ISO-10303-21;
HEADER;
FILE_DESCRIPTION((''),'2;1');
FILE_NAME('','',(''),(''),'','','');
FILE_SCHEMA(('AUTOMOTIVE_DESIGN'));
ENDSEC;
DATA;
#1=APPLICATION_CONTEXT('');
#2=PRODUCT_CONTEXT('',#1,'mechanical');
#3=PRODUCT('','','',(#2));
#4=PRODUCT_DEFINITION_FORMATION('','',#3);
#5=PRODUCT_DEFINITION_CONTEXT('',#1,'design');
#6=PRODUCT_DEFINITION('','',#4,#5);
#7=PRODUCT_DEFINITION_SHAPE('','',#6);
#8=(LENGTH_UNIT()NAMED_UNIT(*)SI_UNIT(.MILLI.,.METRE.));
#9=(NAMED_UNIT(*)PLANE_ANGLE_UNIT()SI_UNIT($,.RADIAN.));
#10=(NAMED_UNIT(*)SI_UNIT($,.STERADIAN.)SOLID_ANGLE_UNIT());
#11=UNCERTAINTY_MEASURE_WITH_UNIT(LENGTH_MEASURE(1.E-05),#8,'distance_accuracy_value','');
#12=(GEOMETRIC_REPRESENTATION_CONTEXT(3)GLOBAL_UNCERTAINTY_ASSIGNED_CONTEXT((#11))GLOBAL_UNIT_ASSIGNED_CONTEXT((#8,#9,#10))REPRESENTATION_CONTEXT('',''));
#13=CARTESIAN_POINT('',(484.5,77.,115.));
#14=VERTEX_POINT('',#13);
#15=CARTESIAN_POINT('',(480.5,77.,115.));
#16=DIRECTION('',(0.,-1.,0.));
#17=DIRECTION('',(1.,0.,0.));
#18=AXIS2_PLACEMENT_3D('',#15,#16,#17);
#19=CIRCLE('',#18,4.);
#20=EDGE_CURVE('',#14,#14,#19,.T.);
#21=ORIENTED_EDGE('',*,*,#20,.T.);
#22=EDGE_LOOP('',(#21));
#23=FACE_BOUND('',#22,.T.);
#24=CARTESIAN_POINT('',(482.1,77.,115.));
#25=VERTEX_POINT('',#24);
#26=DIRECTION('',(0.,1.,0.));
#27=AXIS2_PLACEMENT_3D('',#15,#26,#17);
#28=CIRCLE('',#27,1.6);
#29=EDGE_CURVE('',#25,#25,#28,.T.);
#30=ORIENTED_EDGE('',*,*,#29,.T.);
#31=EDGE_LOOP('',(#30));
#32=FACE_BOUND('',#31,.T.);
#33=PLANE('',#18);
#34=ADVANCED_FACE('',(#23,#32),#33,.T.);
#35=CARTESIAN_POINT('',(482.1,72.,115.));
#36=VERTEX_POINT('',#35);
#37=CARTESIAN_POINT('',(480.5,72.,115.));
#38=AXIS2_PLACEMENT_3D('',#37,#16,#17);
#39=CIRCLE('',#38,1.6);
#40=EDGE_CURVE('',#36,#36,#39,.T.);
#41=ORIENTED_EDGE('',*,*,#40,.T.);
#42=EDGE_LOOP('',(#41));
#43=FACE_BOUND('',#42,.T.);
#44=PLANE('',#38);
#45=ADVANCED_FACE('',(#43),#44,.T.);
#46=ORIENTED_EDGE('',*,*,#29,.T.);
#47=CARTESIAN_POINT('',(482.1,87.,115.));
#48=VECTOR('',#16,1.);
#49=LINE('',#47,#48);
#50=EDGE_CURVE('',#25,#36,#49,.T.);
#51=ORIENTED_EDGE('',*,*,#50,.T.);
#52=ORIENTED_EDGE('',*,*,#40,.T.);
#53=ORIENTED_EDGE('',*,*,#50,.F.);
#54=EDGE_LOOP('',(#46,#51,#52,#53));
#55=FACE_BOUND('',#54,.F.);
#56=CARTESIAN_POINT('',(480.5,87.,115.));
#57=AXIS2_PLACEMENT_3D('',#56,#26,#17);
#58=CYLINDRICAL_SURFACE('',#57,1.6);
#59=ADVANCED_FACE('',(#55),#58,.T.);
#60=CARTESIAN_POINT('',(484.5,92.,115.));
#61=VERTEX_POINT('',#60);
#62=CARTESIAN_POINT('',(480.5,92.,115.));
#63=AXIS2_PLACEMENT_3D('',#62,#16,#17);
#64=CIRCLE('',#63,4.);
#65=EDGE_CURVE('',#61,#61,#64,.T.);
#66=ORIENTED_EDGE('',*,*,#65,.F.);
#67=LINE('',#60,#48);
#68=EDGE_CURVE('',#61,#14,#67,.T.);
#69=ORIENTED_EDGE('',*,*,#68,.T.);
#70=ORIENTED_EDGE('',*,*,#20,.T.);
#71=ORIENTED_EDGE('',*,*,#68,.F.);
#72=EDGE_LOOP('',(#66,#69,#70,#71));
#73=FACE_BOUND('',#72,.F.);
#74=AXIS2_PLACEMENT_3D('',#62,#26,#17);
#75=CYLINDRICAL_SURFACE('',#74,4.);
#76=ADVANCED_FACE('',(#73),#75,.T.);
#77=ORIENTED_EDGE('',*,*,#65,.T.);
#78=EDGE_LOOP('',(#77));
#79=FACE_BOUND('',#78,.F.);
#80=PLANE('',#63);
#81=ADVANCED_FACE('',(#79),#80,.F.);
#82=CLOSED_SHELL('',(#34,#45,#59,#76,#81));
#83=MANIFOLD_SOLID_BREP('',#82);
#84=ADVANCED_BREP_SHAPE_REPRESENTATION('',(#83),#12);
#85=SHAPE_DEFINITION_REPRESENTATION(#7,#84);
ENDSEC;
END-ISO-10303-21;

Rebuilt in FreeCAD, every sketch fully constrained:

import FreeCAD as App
import Part
import Sketcher

doc = App.newDocument("Part")
body = doc.addObject("PartDesign::Body", "Body")

# Sketch on XZ plane
sketch1 = doc.addObject("Sketcher::SketchObject", "Sketch")
body.addObject(sketch1)
sketch1.AttachmentSupport = (doc.XZ_Plane, [""])
sketch1.MapMode = "FlatFace"
sketch1.AttachmentOffset = App.Placement(App.Vector(0, 0, -87), App.Rotation())
sketch1.addGeometry(Part.Circle(App.Vector(480, 115, 0), App.Vector(0, 0, 1), 1.6), False)
sketch1.addConstraint([
    Sketcher.Constraint("Diameter", 0, 3.2),
    Sketcher.Constraint("DistanceX", -1, 1, 0, 3, 480.0),
    Sketcher.Constraint("DistanceY", -1, 1, 0, 3, 115.0),
])
pad1 = doc.addObject("PartDesign::Pad", "Pad")
body.addObject(pad1)
pad1.Profile = sketch1
pad1.Length = 15
body2 = doc.addObject("PartDesign::Body", "Body001")

# Sketch on XZ plane
sketch2 = doc.addObject("Sketcher::SketchObject", "Sketch001")
body2.addObject(sketch2)
sketch2.AttachmentSupport = (doc.getObject("XZ_Plane001"), [""])
sketch2.MapMode = "FlatFace"
sketch2.AttachmentOffset = App.Placement(App.Vector(0, 0, -92), App.Rotation())
sketch2.addGeometry(Part.Circle(App.Vector(480, 115, 0), App.Vector(0, 0, 1), 4), False)
sketch2.addConstraint([
    Sketcher.Constraint("Diameter", 0, 8.0),
    Sketcher.Constraint("DistanceX", -1, 1, 0, 3, 480.0),
    Sketcher.Constraint("DistanceY", -1, 1, 0, 3, 115.0),
])
pad2 = doc.addObject("PartDesign::Pad", "Pad001")
body2.addObject(pad2)
pad2.Profile = sketch2
pad2.Length = 15
doc.recompute()

boolean = doc.addObject("PartDesign::Boolean", "Boolean")
body2.addObject(boolean)
boolean.Type = "Fuse"
boolean.addObjects([body])
body3 = doc.addObject("PartDesign::Body", "Body002")
doc.recompute()

body2.Placement = App.Placement(App.Vector(0.5, 0, 0), App.Rotation(App.Vector(0, 0, 1), 0))
boolean2 = doc.addObject("PartDesign::Boolean", "Boolean001")
body3.addObject(boolean2)
boolean2.Type = "Fuse"
boolean2.addObjects([body2])

doc.recompute()
